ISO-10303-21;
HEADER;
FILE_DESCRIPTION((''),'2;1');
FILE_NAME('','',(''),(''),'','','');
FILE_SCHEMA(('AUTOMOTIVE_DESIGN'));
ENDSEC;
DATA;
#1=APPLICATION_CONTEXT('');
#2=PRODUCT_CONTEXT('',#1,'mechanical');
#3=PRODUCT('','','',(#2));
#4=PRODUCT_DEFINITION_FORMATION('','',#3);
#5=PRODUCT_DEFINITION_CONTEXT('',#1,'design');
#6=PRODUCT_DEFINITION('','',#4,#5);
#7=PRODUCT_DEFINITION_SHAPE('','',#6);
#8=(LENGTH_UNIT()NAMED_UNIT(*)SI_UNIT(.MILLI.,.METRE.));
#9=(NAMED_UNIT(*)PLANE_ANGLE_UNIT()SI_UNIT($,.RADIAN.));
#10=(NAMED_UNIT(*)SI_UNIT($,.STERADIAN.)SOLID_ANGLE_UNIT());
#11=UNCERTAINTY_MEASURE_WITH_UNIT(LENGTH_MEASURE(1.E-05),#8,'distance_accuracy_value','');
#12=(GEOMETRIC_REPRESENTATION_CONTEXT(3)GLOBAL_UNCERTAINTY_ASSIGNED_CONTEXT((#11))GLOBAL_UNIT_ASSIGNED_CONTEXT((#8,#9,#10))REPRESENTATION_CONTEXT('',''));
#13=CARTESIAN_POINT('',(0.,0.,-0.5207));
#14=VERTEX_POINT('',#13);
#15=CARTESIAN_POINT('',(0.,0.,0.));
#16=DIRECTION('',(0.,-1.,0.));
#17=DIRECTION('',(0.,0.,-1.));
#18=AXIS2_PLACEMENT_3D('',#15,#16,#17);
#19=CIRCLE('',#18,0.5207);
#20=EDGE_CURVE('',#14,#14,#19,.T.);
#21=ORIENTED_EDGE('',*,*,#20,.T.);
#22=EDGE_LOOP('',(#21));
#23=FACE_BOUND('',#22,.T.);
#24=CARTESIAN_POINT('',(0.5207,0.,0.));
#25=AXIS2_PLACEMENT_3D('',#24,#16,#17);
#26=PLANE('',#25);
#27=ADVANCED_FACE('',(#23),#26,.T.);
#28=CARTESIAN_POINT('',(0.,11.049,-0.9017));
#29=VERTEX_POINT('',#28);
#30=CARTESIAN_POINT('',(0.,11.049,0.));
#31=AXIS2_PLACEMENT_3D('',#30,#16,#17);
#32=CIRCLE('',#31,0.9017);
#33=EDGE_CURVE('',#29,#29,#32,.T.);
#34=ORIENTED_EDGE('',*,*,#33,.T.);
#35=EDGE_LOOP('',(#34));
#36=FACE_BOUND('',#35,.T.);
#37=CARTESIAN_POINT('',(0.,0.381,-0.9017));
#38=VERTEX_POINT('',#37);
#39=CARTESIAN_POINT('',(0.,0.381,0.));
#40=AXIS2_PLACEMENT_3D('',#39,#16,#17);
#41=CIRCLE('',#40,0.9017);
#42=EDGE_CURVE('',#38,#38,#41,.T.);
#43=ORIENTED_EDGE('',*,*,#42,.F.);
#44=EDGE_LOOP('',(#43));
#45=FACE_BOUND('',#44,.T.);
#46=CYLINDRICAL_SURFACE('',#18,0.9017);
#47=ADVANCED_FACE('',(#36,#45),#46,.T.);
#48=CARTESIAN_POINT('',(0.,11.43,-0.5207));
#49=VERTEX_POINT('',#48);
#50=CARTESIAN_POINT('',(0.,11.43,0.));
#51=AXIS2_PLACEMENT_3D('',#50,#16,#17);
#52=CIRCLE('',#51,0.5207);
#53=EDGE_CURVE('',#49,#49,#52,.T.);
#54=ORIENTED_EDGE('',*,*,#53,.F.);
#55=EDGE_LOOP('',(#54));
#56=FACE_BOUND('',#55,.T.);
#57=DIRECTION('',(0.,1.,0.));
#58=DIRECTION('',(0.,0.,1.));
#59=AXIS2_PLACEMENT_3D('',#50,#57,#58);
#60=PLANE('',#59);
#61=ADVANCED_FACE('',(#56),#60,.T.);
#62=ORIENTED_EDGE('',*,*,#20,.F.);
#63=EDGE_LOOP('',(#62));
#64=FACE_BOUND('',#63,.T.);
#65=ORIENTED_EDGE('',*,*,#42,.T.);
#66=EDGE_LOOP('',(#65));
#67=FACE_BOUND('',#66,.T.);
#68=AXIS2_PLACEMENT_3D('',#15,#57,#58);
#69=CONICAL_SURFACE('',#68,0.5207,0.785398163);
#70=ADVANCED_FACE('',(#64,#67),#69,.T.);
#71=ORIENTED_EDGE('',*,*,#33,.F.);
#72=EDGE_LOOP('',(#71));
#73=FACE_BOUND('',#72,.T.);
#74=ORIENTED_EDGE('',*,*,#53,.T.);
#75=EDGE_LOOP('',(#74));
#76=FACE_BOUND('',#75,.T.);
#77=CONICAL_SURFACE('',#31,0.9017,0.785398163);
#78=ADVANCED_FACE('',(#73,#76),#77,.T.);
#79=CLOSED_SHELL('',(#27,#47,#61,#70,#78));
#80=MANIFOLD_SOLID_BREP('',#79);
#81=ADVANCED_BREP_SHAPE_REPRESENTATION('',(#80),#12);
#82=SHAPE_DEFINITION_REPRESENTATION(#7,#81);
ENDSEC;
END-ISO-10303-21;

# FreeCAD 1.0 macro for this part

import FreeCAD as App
import Part
import Sketcher
Q = App.Units.Quantity

doc = App.newDocument("Part")
body = doc.addObject("PartDesign::Body", "Body")

sketch1 = body.newObject("Sketcher::SketchObject", "Sketch")
sketch1.AttachmentSupport = (doc.getObject("XY_Plane"), [""])
sketch1.MapMode = "FlatFace"
sketch1.addGeometry([
    Part.LineSegment(App.Vector(0, 11.4, 0), App.Vector(0, 0, 0)),
    Part.LineSegment(App.Vector(0, 0, 0), App.Vector(0.5, 0, 0)),
    Part.LineSegment(App.Vector(0.5, 0, 0), App.Vector(0.9, 0.4, 0)),
    Part.LineSegment(App.Vector(0.9, 0.4, 0), App.Vector(0.9, 11, 0)),
    Part.LineSegment(App.Vector(0.9, 11, 0), App.Vector(0.5, 11.4, 0)),
    Part.LineSegment(App.Vector(0.5, 11.4, 0), App.Vector(0, 11.4, 0)),
], False)
sketch1.addConstraint([
    Sketcher.Constraint("Coincident", 0, 2, 1, 1),
    Sketcher.Constraint("Coincident", 1, 2, 2, 1),
    Sketcher.Constraint("Coincident", 2, 2, 3, 1),
    Sketcher.Constraint("Coincident", 3, 2, 4, 1),
    Sketcher.Constraint("Coincident", 4, 2, 5, 1),
    Sketcher.Constraint("Coincident", 5, 2, 0, 1),
    Sketcher.Constraint("Vertical", 0),
    Sketcher.Constraint("Horizontal", 1),
    Sketcher.Constraint("Vertical", 3),
    Sketcher.Constraint("Horizontal", 5),
    Sketcher.Constraint("Coincident", 0, 2, -1, 1),
    Sketcher.Constraint("Perpendicular", 2, 4),
    Sketcher.Constraint("Vertical", 1, 2, 4, 2),
    Sketcher.Constraint("Equal", 2, 4),
    Sketcher.Constraint("DistanceY", 0, 2, 0, 1, Q("0.45 in")),
    Sketcher.Constraint("DistanceY", 3, 1, 3, 2, Q("0.42 in")),
    Sketcher.Constraint("DistanceX", 1, 1, 1, 2, Q("0.0205 in")),
])
revolution = body.newObject("PartDesign::Revolution", "Revolution")
revolution.Profile = sketch1
revolution.ReferenceAxis = (sketch1, ["V_Axis"])
revolution.Angle = 360

doc.recompute()
